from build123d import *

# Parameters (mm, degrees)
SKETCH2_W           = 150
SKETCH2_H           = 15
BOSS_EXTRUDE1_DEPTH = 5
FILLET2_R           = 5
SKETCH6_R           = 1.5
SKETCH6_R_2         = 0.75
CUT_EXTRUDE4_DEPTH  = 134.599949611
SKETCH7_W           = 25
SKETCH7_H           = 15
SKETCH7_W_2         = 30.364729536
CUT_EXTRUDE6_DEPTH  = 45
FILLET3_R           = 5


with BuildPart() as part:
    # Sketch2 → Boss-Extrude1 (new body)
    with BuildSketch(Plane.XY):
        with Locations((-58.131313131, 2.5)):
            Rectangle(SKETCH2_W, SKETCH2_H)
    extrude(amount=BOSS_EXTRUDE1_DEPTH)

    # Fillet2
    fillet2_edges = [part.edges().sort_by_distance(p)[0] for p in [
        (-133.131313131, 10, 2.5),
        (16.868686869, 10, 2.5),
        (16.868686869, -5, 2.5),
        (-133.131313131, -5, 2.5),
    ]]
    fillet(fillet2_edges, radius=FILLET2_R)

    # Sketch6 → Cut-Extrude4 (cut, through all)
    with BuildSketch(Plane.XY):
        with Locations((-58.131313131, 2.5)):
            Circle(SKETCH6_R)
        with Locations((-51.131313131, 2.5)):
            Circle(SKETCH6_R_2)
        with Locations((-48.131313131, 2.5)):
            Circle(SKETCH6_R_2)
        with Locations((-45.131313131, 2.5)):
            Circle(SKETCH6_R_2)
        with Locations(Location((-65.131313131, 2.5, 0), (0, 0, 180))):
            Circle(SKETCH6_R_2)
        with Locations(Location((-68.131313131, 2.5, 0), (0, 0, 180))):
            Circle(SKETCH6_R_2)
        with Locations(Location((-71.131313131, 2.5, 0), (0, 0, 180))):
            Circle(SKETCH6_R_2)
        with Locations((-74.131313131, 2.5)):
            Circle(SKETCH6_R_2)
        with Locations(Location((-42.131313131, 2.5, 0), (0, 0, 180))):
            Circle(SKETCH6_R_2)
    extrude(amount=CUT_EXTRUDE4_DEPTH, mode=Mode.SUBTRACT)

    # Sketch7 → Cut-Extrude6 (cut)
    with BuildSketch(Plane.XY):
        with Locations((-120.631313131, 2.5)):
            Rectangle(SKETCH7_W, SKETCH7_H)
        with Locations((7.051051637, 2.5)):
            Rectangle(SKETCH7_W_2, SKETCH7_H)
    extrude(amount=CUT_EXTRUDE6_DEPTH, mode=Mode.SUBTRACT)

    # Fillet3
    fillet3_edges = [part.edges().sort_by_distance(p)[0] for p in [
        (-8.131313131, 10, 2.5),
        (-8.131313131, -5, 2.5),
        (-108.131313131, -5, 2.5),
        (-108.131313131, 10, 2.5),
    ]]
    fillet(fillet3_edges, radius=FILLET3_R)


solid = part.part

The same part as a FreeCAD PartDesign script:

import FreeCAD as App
import Part
import Sketcher


def edges_at(feature, points):
    """Names of the edges that pass closest to the given points."""
    edges = feature.Shape.Edges
    near = lambda p: min(range(len(edges)), key=lambda i: edges[i].distToShape(Part.Vertex(*p))[0])
    return sorted({f"Edge{near(p) + 1}" for p in points})

doc = App.newDocument("Part")
body = doc.addObject("PartDesign::Body", "Body")

# Sketch on XY plane
sketch1 = doc.addObject("Sketcher::SketchObject", "Sketch")
body.addObject(sketch1)
sketch1.AttachmentSupport = (doc.XY_Plane, [""])
sketch1.MapMode = "FlatFace"
sketch1.addGeometry(Part.LineSegment(App.Vector(-133.131313, 10, 0), App.Vector(-133.131313, -5, 0)), False)
sketch1.addGeometry(Part.LineSegment(App.Vector(-133.131313, -5, 0), App.Vector(16.868687, -5, 0)), False)
sketch1.addGeometry(Part.LineSegment(App.Vector(16.868687, -5, 0), App.Vector(16.868687, 10, 0)), False)
sketch1.addGeometry(Part.LineSegment(App.Vector(16.868687, 10, 0), App.Vector(-133.131313, 10, 0)), False)
sketch1.addConstraint(Sketcher.Constraint("Coincident", 0, 2, 1, 1))
sketch1.addConstraint(Sketcher.Constraint("Coincident", 1, 2, 2, 1))
sketch1.addConstraint(Sketcher.Constraint("Coincident", 2, 2, 3, 1))
sketch1.addConstraint(Sketcher.Constraint("Coincident", 3, 2, 0, 1))
sketch1.addConstraint(Sketcher.Constraint("Vertical", 0))
sketch1.addConstraint(Sketcher.Constraint("Horizontal", 1))
sketch1.addConstraint(Sketcher.Constraint("Vertical", 2))
sketch1.addConstraint(Sketcher.Constraint("Horizontal", 3))
sketch1.addConstraint(Sketcher.Constraint("DistanceX", 1, 1, 1, 2, 150.0))
sketch1.addConstraint(Sketcher.Constraint("DistanceY", 0, 2, 0, 1, 15.0))
sketch1.addConstraint(Sketcher.Constraint("DistanceY", 0, 2, -1, 1, 5.0))
sketch1.addConstraint(Sketcher.Constraint("DistanceX", 0, 2, -1, 1, 133.131313))
pad1 = doc.addObject("PartDesign::Pad", "Pad")
body.addObject(pad1)
pad1.Profile = sketch1
pad1.Length = 5
doc.recompute()

fillet = doc.addObject("PartDesign::Fillet", "Fillet")
body.addObject(fillet)
fillet.Base = (pad1, edges_at(pad1, [
    (-133.131, 10, 2.5),
    (16.869, 10, 2.5),
    (16.869, -5, 2.5),
    (-133.131, -5, 2.5),
]))
fillet.Radius = 5

# Sketch on XY plane
sketch2 = doc.addObject("Sketcher::SketchObject", "Sketch001")
body.addObject(sketch2)
sketch2.AttachmentSupport = (doc.XY_Plane, [""])
sketch2.MapMode = "FlatFace"
sketch2.addGeometry(Part.Circle(App.Vector(-58.131313, 2.5, 0), App.Vector(0, 0, 1), 1.5), False)
sketch2.addGeometry(Part.Circle(App.Vector(-51.131313, 2.5, 0), App.Vector(0, 0, 1), 0.75), False)
sketch2.addGeometry(Part.Circle(App.Vector(-48.131313, 2.5, 0), App.Vector(0, 0, 1), 0.75), False)
sketch2.addGeometry(Part.Circle(App.Vector(-45.131313, 2.5, 0), App.Vector(0, 0, 1), 0.75), False)
sketch2.addGeometry(Part.Circle(App.Vector(-65.131313, 2.5, 0), App.Vector(0, 0, 1), 0.75), False)
sketch2.addGeometry(Part.Circle(App.Vector(-68.131313, 2.5, 0), App.Vector(0, 0, 1), 0.75), False)
sketch2.addGeometry(Part.Circle(App.Vector(-71.131313, 2.5, 0), App.Vector(0, 0, 1), 0.75), False)
sketch2.addGeometry(Part.Circle(App.Vector(-74.131313, 2.5, 0), App.Vector(0, 0, 1), 0.75), False)
sketch2.addGeometry(Part.Circle(App.Vector(-42.131313, 2.5, 0), App.Vector(0, 0, 1), 0.75), False)
sketch2.addConstraint(Sketcher.Constraint("Equal", 1, 2))
sketch2.addConstraint(Sketcher.Constraint("Equal", 2, 3))
sketch2.addConstraint(Sketcher.Constraint("Equal", 3, 4))
sketch2.addConstraint(Sketcher.Constraint("Equal", 4, 5))
sketch2.addConstraint(Sketcher.Constraint("Equal", 5, 6))
sketch2.addConstraint(Sketcher.Constraint("Equal", 6, 7))
sketch2.addConstraint(Sketcher.Constraint("Equal", 7, 8))
sketch2.addConstraint(Sketcher.Constraint("Horizontal", 0, 3, 1, 3))
sketch2.addConstraint(Sketcher.Constraint("Horizontal", 1, 3, 2, 3))
sketch2.addConstraint(Sketcher.Constraint("Horizontal", 2, 3, 3, 3))
sketch2.addConstraint(Sketcher.Constraint("Horizontal", 3, 3, 4, 3))
sketch2.addConstraint(Sketcher.Constraint("Horizontal", 4, 3, 5, 3))
sketch2.addConstraint(Sketcher.Constraint("Horizontal", 5, 3, 6, 3))
sketch2.addConstraint(Sketcher.Constraint("Horizontal", 6, 3, 7, 3))
sketch2.addConstraint(Sketcher.Constraint("Horizontal", 7, 3, 8, 3))
sketch2.addConstraint(Sketcher.Constraint("Diameter", 0, 3.0))
sketch2.addConstraint(Sketcher.Constraint("Diameter", 1, 1.5))
sketch2.addConstraint(Sketcher.Constraint("DistanceX", 0, 3, 1, 3, 7.0))
sketch2.addConstraint(Sketcher.Constraint("DistanceX", 1, 3, 2, 3, 3.0))
sketch2.addConstraint(Sketcher.Constraint("DistanceX", 2, 3, 3, 3, 3.0))
sketch2.addConstraint(Sketcher.Constraint("DistanceX", 4, 3, 0, 3, 7.0))
sketch2.addConstraint(Sketcher.Constraint("DistanceX", 5, 3, 4, 3, 3.0))
sketch2.addConstraint(Sketcher.Constraint("DistanceX", 6, 3, 5, 3, 3.0))
sketch2.addConstraint(Sketcher.Constraint("DistanceX", 7, 3, 6, 3, 3.0))
sketch2.addConstraint(Sketcher.Constraint("DistanceX", 3, 3, 8, 3, 3.0))
sketch2.addConstraint(Sketcher.Constraint("DistanceY", -1, 1, 0, 3, 2.5))
sketch2.addConstraint(Sketcher.Constraint("DistanceX", 0, 3, -1, 1, 58.131313))
pocket1 = doc.addObject("PartDesign::Pocket", "Pocket")
body.addObject(pocket1)
pocket1.Profile = sketch2
pocket1.Type = "ThroughAll"
pocket1.Reversed = True

# Sketch on XY plane
sketch3 = doc.addObject("Sketcher::SketchObject", "Sketch002")
body.addObject(sketch3)
sketch3.AttachmentSupport = (doc.XY_Plane, [""])
sketch3.MapMode = "FlatFace"
sketch3.addGeometry(Part.LineSegment(App.Vector(-133.131313, 10, 0), App.Vector(-133.131313, -5, 0)), False)
sketch3.addGeometry(Part.LineSegment(App.Vector(-133.131313, -5, 0), App.Vector(-108.131313, -5, 0)), False)
sketch3.addGeometry(Part.LineSegment(App.Vector(-108.131313, -5, 0), App.Vector(-108.131313, 10, 0)), False)
sketch3.addGeometry(Part.LineSegment(App.Vector(-108.131313, 10, 0), App.Vector(-133.131313, 10, 0)), False)
sketch3.addGeometry(Part.LineSegment(App.Vector(-8.131313, 10, 0), App.Vector(-8.131313, -5, 0)), False)
sketch3.addGeometry(Part.LineSegment(App.Vector(-8.131313, -5, 0), App.Vector(22.233416, -5, 0)), False)
sketch3.addGeometry(Part.LineSegment(App.Vector(22.233416, -5, 0), App.Vector(22.233416, 10, 0)), False)
sketch3.addGeometry(Part.LineSegment(App.Vector(22.233416, 10, 0), App.Vector(-8.131313, 10, 0)), False)
sketch3.addConstraint(Sketcher.Constraint("Coincident", 0, 2, 1, 1))
sketch3.addConstraint(Sketcher.Constraint("Coincident", 1, 2, 2, 1))
sketch3.addConstraint(Sketcher.Constraint("Coincident", 2, 2, 3, 1))
sketch3.addConstraint(Sketcher.Constraint("Coincident", 3, 2, 0, 1))
sketch3.addConstraint(Sketcher.Constraint("Coincident", 4, 2, 5, 1))
sketch3.addConstraint(Sketcher.Constraint("Coincident", 5, 2, 6, 1))
sketch3.addConstraint(Sketcher.Constraint("Coincident", 6, 2, 7, 1))
sketch3.addConstraint(Sketcher.Constraint("Coincident", 7, 2, 4, 1))
sketch3.addConstraint(Sketcher.Constraint("Vertical", 0))
sketch3.addConstraint(Sketcher.Constraint("Horizontal", 1))
sketch3.addConstraint(Sketcher.Constraint("Vertical", 2))
sketch3.addConstraint(Sketcher.Constraint("Horizontal", 3))
sketch3.addConstraint(Sketcher.Constraint("Vertical", 4))
sketch3.addConstraint(Sketcher.Constraint("Horizontal", 5))
sketch3.addConstraint(Sketcher.Constraint("Vertical", 6))
sketch3.addConstraint(Sketcher.Constraint("Horizontal", 7))
sketch3.addConstraint(Sketcher.Constraint("Horizontal", 1, 2, 4, 2))
sketch3.addConstraint(Sketcher.Constraint("Horizontal", 3, 2, 6, 2))
sketch3.addConstraint(Sketcher.Constraint("DistanceX", 1, 1, 1, 2, 25.0))
sketch3.addConstraint(Sketcher.Constraint("DistanceY", 0, 2, 0, 1, 15.0))
sketch3.addConstraint(Sketcher.Constraint("DistanceY", 0, 2, -1, 1, 5.0))
sketch3.addConstraint(Sketcher.Constraint("DistanceX", 1, 2, 4, 2, 100.0))
sketch3.addConstraint(Sketcher.Constraint("DistanceX", 5, 1, 5, 2, 30.36473))
sketch3.addConstraint(Sketcher.Constraint("DistanceX", 0, 2, -1, 1, 133.131313))
pocket2 = doc.addObject("PartDesign::Pocket", "Pocket001")
body.addObject(pocket2)
pocket2.Profile = sketch3
pocket2.Length = 45
pocket2.Reversed = True
doc.recompute()

fillet2 = doc.addObject("PartDesign::Fillet", "Fillet001")
body.addObject(fillet2)
fillet2.Base = (pocket2, edges_at(pocket2, [
    (-8.131, 10, 2.5),
    (-8.131, -5, 2.5),
    (-108.131, -5, 2.5),
    (-108.131, 10, 2.5),
]))
fillet2.Radius = 5

doc.recompute()
